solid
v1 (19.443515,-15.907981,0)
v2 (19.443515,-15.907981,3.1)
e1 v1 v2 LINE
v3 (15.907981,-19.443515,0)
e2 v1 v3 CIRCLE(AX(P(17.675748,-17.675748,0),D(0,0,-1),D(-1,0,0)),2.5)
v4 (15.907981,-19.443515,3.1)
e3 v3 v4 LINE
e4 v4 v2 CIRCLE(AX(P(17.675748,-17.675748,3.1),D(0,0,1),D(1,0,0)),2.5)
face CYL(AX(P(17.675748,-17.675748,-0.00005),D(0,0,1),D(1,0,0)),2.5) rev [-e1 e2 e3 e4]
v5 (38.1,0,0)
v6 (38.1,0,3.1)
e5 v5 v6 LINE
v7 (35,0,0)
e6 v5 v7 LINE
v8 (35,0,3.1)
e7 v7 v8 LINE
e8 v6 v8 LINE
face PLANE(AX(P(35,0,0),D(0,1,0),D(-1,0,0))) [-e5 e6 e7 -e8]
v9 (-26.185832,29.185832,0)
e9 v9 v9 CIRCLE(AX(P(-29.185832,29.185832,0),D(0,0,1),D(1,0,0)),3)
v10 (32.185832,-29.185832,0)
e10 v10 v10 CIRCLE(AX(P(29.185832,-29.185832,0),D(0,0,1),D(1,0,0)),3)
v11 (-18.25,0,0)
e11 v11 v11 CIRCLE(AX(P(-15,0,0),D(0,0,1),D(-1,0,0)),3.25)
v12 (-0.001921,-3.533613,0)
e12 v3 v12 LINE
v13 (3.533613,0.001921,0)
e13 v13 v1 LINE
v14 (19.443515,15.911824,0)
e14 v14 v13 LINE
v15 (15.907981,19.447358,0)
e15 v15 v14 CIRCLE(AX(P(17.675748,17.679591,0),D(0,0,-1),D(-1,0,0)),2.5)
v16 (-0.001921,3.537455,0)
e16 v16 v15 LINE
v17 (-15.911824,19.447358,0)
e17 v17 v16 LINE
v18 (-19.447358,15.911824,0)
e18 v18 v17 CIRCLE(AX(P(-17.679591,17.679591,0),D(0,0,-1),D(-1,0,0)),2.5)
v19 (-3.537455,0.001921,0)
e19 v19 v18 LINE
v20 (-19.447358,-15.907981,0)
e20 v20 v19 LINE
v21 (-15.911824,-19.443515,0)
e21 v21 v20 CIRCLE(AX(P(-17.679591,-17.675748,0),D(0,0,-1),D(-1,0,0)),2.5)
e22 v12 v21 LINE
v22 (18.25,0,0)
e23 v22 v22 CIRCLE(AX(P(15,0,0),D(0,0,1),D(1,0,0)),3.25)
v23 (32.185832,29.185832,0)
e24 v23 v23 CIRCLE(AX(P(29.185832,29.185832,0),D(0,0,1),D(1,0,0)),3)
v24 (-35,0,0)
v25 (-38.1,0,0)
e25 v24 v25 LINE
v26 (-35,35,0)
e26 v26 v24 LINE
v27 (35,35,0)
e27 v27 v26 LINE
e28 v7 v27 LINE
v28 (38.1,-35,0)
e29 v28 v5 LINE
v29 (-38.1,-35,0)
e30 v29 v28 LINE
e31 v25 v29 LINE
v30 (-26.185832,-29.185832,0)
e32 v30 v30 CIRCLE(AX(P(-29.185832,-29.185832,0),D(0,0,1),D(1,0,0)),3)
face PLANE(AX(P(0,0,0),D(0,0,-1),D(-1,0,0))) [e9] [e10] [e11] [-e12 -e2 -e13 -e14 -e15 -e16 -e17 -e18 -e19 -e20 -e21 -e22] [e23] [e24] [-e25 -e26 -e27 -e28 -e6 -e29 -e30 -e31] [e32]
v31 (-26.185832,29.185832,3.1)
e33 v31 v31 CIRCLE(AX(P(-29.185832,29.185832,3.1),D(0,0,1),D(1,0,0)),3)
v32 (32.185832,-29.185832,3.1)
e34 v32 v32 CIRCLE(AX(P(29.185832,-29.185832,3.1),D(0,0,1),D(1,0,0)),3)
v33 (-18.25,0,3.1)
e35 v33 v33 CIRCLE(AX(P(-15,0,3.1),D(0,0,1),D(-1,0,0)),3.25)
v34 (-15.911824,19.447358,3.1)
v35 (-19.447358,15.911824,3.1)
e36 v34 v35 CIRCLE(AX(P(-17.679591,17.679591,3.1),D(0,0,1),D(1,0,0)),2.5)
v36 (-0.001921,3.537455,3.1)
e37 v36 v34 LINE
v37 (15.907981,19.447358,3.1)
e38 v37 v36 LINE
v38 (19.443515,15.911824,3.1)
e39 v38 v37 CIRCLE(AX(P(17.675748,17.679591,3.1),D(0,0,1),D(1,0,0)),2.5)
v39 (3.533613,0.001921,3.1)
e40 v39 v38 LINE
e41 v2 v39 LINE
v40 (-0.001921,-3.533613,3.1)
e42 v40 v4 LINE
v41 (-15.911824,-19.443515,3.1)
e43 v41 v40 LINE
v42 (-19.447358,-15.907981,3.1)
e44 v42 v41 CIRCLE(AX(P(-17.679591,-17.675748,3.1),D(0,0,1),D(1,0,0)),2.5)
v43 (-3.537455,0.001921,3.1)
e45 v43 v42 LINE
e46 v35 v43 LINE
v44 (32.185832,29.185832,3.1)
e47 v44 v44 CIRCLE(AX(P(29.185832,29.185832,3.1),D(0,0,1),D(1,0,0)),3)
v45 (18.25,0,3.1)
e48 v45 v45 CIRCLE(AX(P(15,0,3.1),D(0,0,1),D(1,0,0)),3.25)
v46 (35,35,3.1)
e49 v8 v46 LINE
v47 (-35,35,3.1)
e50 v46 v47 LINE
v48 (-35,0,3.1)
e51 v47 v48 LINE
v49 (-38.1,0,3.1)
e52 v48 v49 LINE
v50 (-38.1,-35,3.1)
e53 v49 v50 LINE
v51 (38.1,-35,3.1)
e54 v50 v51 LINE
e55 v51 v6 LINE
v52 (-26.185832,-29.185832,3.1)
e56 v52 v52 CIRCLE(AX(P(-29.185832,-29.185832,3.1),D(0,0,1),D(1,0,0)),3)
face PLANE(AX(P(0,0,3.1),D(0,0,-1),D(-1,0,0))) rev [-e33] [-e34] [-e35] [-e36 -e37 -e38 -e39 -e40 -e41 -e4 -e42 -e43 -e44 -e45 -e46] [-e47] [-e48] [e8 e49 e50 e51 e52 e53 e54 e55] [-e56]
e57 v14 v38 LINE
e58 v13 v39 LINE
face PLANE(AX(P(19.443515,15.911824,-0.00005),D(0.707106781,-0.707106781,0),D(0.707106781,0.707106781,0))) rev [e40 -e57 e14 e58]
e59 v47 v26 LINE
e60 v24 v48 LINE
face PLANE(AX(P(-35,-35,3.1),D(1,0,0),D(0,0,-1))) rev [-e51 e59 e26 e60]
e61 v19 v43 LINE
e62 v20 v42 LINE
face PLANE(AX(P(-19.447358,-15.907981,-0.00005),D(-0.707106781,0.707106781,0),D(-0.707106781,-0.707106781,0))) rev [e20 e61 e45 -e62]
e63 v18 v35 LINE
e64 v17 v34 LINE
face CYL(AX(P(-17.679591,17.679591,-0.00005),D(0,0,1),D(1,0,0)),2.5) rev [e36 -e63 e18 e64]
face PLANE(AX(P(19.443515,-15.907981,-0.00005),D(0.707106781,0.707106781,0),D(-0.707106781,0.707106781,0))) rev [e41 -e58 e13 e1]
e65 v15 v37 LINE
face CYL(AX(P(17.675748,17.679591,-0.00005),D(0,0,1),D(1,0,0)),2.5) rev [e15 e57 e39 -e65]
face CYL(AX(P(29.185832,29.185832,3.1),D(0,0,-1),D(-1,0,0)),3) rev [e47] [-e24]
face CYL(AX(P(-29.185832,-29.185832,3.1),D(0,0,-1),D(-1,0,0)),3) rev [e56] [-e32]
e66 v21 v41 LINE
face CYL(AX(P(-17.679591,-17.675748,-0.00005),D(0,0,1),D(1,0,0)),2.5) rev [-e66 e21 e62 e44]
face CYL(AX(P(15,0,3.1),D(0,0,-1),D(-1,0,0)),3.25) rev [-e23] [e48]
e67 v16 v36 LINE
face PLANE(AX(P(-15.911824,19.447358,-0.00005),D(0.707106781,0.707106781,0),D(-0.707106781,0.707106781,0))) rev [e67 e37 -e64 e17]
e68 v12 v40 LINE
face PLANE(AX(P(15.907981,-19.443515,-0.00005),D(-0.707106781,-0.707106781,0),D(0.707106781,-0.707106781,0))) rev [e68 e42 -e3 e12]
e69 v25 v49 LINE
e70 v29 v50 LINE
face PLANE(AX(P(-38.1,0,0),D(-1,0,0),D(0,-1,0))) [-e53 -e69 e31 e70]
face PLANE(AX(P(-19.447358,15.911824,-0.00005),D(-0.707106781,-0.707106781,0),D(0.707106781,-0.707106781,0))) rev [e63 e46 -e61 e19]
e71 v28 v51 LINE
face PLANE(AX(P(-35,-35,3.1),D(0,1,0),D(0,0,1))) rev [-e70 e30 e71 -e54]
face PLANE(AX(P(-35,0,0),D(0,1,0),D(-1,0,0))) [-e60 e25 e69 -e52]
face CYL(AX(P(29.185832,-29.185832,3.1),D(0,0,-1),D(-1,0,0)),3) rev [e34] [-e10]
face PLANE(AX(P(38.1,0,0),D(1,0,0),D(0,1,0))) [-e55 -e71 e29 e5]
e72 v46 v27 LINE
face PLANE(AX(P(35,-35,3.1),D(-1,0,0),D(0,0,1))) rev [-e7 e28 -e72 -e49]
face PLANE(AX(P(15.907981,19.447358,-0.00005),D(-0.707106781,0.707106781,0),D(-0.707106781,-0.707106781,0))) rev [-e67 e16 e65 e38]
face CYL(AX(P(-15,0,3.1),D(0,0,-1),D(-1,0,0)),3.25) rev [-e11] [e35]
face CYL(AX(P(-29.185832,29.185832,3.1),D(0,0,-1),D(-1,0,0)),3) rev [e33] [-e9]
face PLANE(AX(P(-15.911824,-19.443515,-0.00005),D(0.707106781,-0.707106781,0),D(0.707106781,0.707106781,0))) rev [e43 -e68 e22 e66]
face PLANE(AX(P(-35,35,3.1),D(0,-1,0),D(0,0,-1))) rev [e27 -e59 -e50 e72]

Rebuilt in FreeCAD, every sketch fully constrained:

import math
import FreeCAD as App
import Part
import Sketcher

doc = App.newDocument("Part")
params = doc.addObject("Spreadsheet::Sheet", "Params")
for row, (alias, value) in enumerate([
    ("sketch1_diameter", "6 mm"),
    ("sketch1_diameter2", "6.5 mm"),
    ("sketch1_width", "70 mm"),
    ("pad1_length", "3.1 mm"),
    ("sketch2_height", "35 mm"),
    ("sketch2_width", "3.1 mm"),
    ("sketch3_radius", "2.5 mm"),
    ("sketch3_length", "22.5 mm"),
], start=1):
    params.set(f"A{row}", alias)
    params.set(f"B{row}", "=" + value)
    params.setAlias(f"B{row}", alias)

body = doc.addObject("PartDesign::Body", "Body")

sketch1 = doc.addObject("Sketcher::SketchObject", "Sketch")
body.addObject(sketch1)
sketch1.AttachmentSupport = (doc.XY_Plane, [""])
sketch1.MapMode = "FlatFace"
sketch1.addGeometry([
    Part.LineSegment(App.Vector(-35, 35, 0), App.Vector(-35, -35, 0)),
    Part.LineSegment(App.Vector(-35, -35, 0), App.Vector(35, -35, 0)),
    Part.LineSegment(App.Vector(35, -35, 0), App.Vector(35, 35, 0)),
    Part.LineSegment(App.Vector(35, 35, 0), App.Vector(-35, 35, 0)),
    Part.Circle(App.Vector(-29.2, -29.2, 0), App.Vector(0, 0, 1), 3),
    Part.Circle(App.Vector(29.2, -29.2, 0), App.Vector(0, 0, 1), 3),
    Part.Circle(App.Vector(-15, 0, 0), App.Vector(0, 0, 1), 3.2),
    Part.Circle(App.Vector(-29.2, 29.2, 0), App.Vector(0, 0, 1), 3),
    Part.Circle(App.Vector(15, 0, 0), App.Vector(0, 0, 1), 3.2),
    Part.Circle(App.Vector(29.2, 29.2, 0), App.Vector(0, 0, 1), 3),
], False)
sketch1.addConstraint([
    Sketcher.Constraint("Coincident", 0, 2, 1, 1),
    Sketcher.Constraint("Coincident", 1, 2, 2, 1),
    Sketcher.Constraint("Coincident", 2, 2, 3, 1),
    Sketcher.Constraint("Coincident", 3, 2, 0, 1),
    Sketcher.Constraint("Vertical", 0),
    Sketcher.Constraint("Horizontal", 1),
    Sketcher.Constraint("Vertical", 2),
    Sketcher.Constraint("Horizontal", 3),
    Sketcher.Constraint("Equal", 4, 5),
    Sketcher.Constraint("Equal", 5, 7),
    Sketcher.Constraint("Equal", 6, 8),
    Sketcher.Constraint("Equal", 7, 9),
    Sketcher.Constraint("Symmetric", 5, 3, 7, 3, -1, 1),
    Sketcher.Constraint("Symmetric", 6, 3, 8, 3, -1, 1),
    Sketcher.Constraint("Symmetric", 4, 3, 9, 3, -1, 1),
    Sketcher.Constraint("Symmetric", 0, 2, 2, 2, -1, 1),
    Sketcher.Constraint("Symmetric", 4, 3, 5, 3, -2),
    Sketcher.Constraint("PointOnObject", 6, 3, -1),
    Sketcher.Constraint("Equal", 3, 0),
    Sketcher.Constraint("Diameter", 4, 6.0),
    Sketcher.Constraint("Diameter", 6, 6.5),
    Sketcher.Constraint("DistanceX", 1, 1, 1, 2, 70.0),
    Sketcher.Constraint("DistanceX", 6, 3, -1, 1, 15.0),
    Sketcher.Constraint("DistanceX", 4, 3, -1, 1, 29.185832),
    Sketcher.Constraint("DistanceY", 4, 3, -1, 1, 29.185832),
])
sketch1.setExpression("Constraints[19]", "Params.sketch1_diameter")
sketch1.setExpression("Constraints[20]", "Params.sketch1_diameter2")
sketch1.setExpression("Constraints[21]", "Params.sketch1_width")
pad1 = doc.addObject("PartDesign::Pad", "Pad")
body.addObject(pad1)
pad1.Profile = sketch1
pad1.setExpression("Length", "Params.pad1_length")

sketch2 = doc.addObject("Sketcher::SketchObject", "Sketch001")
body.addObject(sketch2)
sketch2.AttachmentSupport = (doc.XY_Plane, [""])
sketch2.MapMode = "FlatFace"
sketch2.AttachmentOffset = App.Placement(App.Vector(0, 0, 3.1), App.Rotation())
sketch2.addGeometry([
    Part.LineSegment(App.Vector(35, 0, 0), App.Vector(35, -35, 0)),
    Part.LineSegment(App.Vector(35, -35, 0), App.Vector(38.1, -35, 0)),
    Part.LineSegment(App.Vector(38.1, -35, 0), App.Vector(38.1, 0, 0)),
    Part.LineSegment(App.Vector(38.1, 0, 0), App.Vector(35, 0, 0)),
    Part.LineSegment(App.Vector(-38.1, 0, 0), App.Vector(-38.1, -35, 0)),
    Part.LineSegment(App.Vector(-38.1, -35, 0), App.Vector(-35, -35, 0)),
    Part.LineSegment(App.Vector(-35, -35, 0), App.Vector(-35, 0, 0)),
    Part.LineSegment(App.Vector(-35, 0, 0), App.Vector(-38.1, 0, 0)),
], False)
sketch2.addConstraint([
    Sketcher.Constraint("Coincident", 0, 2, 1, 1),
    Sketcher.Constraint("Coincident", 1, 2, 2, 1),
    Sketcher.Constraint("Coincident", 2, 2, 3, 1),
    Sketcher.Constraint("Coincident", 3, 2, 0, 1),
    Sketcher.Constraint("Coincident", 4, 2, 5, 1),
    Sketcher.Constraint("Coincident", 5, 2, 6, 1),
    Sketcher.Constraint("Coincident", 6, 2, 7, 1),
    Sketcher.Constraint("Coincident", 7, 2, 4, 1),
    Sketcher.Constraint("Vertical", 0),
    Sketcher.Constraint("Horizontal", 1),
    Sketcher.Constraint("Vertical", 2),
    Sketcher.Constraint("Horizontal", 3),
    Sketcher.Constraint("Vertical", 4),
    Sketcher.Constraint("Horizontal", 5),
    Sketcher.Constraint("Vertical", 6),
    Sketcher.Constraint("Horizontal", 7),
    Sketcher.Constraint("Symmetric", 3, 2, 6, 2, -1, 1),
    Sketcher.Constraint("Symmetric", 1, 2, 4, 2, -2),
    Sketcher.Constraint("PointOnObject", 2, 2, -1),
    Sketcher.Constraint("DistanceY", 0, 2, 0, 1, 35.0),
    Sketcher.Constraint("DistanceX", 1, 1, 1, 2, 3.1),
    Sketcher.Constraint("DistanceX", -1, 1, 0, 2, 35.0),
])
sketch2.setExpression("Constraints[19]", "Params.sketch2_height")
sketch2.setExpression("Constraints[20]", "Params.sketch2_width")
pad2 = doc.addObject("PartDesign::Pad", "Pad001")
body.addObject(pad2)
pad2.Profile = sketch2
pad2.Type = "UpToLast"
pad2.Reversed = True

sketch3 = doc.addObject("Sketcher::SketchObject", "Sketch002")
body.addObject(sketch3)
sketch3.AttachmentSupport = (doc.XY_Plane, [""])
sketch3.MapMode = "FlatFace"
sketch3.AttachmentOffset = App.Placement(App.Vector(0, 0, 3.1), App.Rotation())
sketch3.addGeometry([
    Part.LineSegment(App.Vector(0, 3.5, 0), App.Vector(-15.9, 19.4, 0)),
    Part.ArcOfCircle(Part.Circle(App.Vector(-17.7, 17.7, 0), App.Vector(0, 0, 1), 2.5), math.radians(45), math.radians(225)),
    Part.LineSegment(App.Vector(-19.4, 15.9, 0), App.Vector(-3.5, 0, 0)),
    Part.LineSegment(App.Vector(-3.5, 0, 0), App.Vector(-19.4, -15.9, 0)),
    Part.ArcOfCircle(Part.Circle(App.Vector(-17.7, -17.7, 0), App.Vector(0, 0, 1), 2.5), math.radians(135), math.radians(315)),
    Part.LineSegment(App.Vector(-15.9, -19.4, 0), App.Vector(0, -3.5, 0)),
    Part.LineSegment(App.Vector(0, -3.5, 0), App.Vector(15.9, -19.4, 0)),
    Part.ArcOfCircle(Part.Circle(App.Vector(17.7, -17.7, 0), App.Vector(0, 0, 1), 2.5), math.radians(-135), math.radians(45)),
    Part.LineSegment(App.Vector(19.4, -15.9, 0), App.Vector(3.5, 0, 0)),
    Part.LineSegment(App.Vector(3.5, 0, 0), App.Vector(19.4, 15.9, 0)),
    Part.ArcOfCircle(Part.Circle(App.Vector(17.7, 17.7, 0), App.Vector(0, 0, 1), 2.5), math.radians(-45), math.radians(135)),
    Part.LineSegment(App.Vector(15.9, 19.4, 0), App.Vector(0, 3.5, 0)),
], False)
sketch3.addConstraint([
    Sketcher.Constraint("Tangent", 0, 2, 1, 1),
    Sketcher.Constraint("Tangent", 1, 2, 2, 1),
    Sketcher.Constraint("Coincident", 2, 2, 3, 1),
    Sketcher.Constraint("Tangent", 3, 2, 4, 1),
    Sketcher.Constraint("Tangent", 4, 2, 5, 1),
    Sketcher.Constraint("Coincident", 5, 2, 6, 1),
    Sketcher.Constraint("Tangent", 6, 2, 7, 1),
    Sketcher.Constraint("Tangent", 7, 2, 8, 1),
    Sketcher.Constraint("Coincident", 8, 2, 9, 1),
    Sketcher.Constraint("Tangent", 9, 2, 10, 1),
    Sketcher.Constraint("Tangent", 10, 2, 11, 1),
    Sketcher.Constraint("Coincident", 11, 2, 0, 1),
    Sketcher.Constraint("Equal", 1, 4),
    Sketcher.Constraint("Equal", 4, 7),
    Sketcher.Constraint("Equal", 7, 10),
    Sketcher.Constraint("Parallel", 0, 2),
    Sketcher.Constraint("Perpendicular", 2, 3),
    Sketcher.Constraint("Parallel", 3, 5),
    Sketcher.Constraint("Perpendicular", 5, 6),
    Sketcher.Constraint("Parallel", 6, 8),
    Sketcher.Constraint("Perpendicular", 8, 9),
    Sketcher.Constraint("Parallel", 9, 11),
    Sketcher.Constraint("Horizontal", 4, 3, 7, 3),
    Sketcher.Constraint("Horizontal", 1, 3, 10, 3),
    Sketcher.Constraint("Horizontal", 4, 2, 6, 2),
    Sketcher.Constraint("Horizontal", 2, 2, 8, 2),
    Sketcher.Constraint("Vertical", 1, 3, 4, 3),
    Sketcher.Constraint("Equal", 0, 2),
    Sketcher.Constraint("Radius", 1, 2.5),
    Sketcher.Constraint("Distance", 0, 22.5),
    Sketcher.Constraint("DistanceX", 1, 3, -1, 1, 17.679591),
    Sketcher.Constraint("DistanceY", -1, 1, 1, 3, 17.679591),
])
sketch3.setExpression("Constraints[28]", "Params.sketch3_radius")
sketch3.setExpression("Constraints[29]", "Params.sketch3_length")
pocket1 = doc.addObject("PartDesign::Pocket", "Pocket")
body.addObject(pocket1)
pocket1.Profile = sketch3
pocket1.Type = "ThroughAll"

doc.recompute()
